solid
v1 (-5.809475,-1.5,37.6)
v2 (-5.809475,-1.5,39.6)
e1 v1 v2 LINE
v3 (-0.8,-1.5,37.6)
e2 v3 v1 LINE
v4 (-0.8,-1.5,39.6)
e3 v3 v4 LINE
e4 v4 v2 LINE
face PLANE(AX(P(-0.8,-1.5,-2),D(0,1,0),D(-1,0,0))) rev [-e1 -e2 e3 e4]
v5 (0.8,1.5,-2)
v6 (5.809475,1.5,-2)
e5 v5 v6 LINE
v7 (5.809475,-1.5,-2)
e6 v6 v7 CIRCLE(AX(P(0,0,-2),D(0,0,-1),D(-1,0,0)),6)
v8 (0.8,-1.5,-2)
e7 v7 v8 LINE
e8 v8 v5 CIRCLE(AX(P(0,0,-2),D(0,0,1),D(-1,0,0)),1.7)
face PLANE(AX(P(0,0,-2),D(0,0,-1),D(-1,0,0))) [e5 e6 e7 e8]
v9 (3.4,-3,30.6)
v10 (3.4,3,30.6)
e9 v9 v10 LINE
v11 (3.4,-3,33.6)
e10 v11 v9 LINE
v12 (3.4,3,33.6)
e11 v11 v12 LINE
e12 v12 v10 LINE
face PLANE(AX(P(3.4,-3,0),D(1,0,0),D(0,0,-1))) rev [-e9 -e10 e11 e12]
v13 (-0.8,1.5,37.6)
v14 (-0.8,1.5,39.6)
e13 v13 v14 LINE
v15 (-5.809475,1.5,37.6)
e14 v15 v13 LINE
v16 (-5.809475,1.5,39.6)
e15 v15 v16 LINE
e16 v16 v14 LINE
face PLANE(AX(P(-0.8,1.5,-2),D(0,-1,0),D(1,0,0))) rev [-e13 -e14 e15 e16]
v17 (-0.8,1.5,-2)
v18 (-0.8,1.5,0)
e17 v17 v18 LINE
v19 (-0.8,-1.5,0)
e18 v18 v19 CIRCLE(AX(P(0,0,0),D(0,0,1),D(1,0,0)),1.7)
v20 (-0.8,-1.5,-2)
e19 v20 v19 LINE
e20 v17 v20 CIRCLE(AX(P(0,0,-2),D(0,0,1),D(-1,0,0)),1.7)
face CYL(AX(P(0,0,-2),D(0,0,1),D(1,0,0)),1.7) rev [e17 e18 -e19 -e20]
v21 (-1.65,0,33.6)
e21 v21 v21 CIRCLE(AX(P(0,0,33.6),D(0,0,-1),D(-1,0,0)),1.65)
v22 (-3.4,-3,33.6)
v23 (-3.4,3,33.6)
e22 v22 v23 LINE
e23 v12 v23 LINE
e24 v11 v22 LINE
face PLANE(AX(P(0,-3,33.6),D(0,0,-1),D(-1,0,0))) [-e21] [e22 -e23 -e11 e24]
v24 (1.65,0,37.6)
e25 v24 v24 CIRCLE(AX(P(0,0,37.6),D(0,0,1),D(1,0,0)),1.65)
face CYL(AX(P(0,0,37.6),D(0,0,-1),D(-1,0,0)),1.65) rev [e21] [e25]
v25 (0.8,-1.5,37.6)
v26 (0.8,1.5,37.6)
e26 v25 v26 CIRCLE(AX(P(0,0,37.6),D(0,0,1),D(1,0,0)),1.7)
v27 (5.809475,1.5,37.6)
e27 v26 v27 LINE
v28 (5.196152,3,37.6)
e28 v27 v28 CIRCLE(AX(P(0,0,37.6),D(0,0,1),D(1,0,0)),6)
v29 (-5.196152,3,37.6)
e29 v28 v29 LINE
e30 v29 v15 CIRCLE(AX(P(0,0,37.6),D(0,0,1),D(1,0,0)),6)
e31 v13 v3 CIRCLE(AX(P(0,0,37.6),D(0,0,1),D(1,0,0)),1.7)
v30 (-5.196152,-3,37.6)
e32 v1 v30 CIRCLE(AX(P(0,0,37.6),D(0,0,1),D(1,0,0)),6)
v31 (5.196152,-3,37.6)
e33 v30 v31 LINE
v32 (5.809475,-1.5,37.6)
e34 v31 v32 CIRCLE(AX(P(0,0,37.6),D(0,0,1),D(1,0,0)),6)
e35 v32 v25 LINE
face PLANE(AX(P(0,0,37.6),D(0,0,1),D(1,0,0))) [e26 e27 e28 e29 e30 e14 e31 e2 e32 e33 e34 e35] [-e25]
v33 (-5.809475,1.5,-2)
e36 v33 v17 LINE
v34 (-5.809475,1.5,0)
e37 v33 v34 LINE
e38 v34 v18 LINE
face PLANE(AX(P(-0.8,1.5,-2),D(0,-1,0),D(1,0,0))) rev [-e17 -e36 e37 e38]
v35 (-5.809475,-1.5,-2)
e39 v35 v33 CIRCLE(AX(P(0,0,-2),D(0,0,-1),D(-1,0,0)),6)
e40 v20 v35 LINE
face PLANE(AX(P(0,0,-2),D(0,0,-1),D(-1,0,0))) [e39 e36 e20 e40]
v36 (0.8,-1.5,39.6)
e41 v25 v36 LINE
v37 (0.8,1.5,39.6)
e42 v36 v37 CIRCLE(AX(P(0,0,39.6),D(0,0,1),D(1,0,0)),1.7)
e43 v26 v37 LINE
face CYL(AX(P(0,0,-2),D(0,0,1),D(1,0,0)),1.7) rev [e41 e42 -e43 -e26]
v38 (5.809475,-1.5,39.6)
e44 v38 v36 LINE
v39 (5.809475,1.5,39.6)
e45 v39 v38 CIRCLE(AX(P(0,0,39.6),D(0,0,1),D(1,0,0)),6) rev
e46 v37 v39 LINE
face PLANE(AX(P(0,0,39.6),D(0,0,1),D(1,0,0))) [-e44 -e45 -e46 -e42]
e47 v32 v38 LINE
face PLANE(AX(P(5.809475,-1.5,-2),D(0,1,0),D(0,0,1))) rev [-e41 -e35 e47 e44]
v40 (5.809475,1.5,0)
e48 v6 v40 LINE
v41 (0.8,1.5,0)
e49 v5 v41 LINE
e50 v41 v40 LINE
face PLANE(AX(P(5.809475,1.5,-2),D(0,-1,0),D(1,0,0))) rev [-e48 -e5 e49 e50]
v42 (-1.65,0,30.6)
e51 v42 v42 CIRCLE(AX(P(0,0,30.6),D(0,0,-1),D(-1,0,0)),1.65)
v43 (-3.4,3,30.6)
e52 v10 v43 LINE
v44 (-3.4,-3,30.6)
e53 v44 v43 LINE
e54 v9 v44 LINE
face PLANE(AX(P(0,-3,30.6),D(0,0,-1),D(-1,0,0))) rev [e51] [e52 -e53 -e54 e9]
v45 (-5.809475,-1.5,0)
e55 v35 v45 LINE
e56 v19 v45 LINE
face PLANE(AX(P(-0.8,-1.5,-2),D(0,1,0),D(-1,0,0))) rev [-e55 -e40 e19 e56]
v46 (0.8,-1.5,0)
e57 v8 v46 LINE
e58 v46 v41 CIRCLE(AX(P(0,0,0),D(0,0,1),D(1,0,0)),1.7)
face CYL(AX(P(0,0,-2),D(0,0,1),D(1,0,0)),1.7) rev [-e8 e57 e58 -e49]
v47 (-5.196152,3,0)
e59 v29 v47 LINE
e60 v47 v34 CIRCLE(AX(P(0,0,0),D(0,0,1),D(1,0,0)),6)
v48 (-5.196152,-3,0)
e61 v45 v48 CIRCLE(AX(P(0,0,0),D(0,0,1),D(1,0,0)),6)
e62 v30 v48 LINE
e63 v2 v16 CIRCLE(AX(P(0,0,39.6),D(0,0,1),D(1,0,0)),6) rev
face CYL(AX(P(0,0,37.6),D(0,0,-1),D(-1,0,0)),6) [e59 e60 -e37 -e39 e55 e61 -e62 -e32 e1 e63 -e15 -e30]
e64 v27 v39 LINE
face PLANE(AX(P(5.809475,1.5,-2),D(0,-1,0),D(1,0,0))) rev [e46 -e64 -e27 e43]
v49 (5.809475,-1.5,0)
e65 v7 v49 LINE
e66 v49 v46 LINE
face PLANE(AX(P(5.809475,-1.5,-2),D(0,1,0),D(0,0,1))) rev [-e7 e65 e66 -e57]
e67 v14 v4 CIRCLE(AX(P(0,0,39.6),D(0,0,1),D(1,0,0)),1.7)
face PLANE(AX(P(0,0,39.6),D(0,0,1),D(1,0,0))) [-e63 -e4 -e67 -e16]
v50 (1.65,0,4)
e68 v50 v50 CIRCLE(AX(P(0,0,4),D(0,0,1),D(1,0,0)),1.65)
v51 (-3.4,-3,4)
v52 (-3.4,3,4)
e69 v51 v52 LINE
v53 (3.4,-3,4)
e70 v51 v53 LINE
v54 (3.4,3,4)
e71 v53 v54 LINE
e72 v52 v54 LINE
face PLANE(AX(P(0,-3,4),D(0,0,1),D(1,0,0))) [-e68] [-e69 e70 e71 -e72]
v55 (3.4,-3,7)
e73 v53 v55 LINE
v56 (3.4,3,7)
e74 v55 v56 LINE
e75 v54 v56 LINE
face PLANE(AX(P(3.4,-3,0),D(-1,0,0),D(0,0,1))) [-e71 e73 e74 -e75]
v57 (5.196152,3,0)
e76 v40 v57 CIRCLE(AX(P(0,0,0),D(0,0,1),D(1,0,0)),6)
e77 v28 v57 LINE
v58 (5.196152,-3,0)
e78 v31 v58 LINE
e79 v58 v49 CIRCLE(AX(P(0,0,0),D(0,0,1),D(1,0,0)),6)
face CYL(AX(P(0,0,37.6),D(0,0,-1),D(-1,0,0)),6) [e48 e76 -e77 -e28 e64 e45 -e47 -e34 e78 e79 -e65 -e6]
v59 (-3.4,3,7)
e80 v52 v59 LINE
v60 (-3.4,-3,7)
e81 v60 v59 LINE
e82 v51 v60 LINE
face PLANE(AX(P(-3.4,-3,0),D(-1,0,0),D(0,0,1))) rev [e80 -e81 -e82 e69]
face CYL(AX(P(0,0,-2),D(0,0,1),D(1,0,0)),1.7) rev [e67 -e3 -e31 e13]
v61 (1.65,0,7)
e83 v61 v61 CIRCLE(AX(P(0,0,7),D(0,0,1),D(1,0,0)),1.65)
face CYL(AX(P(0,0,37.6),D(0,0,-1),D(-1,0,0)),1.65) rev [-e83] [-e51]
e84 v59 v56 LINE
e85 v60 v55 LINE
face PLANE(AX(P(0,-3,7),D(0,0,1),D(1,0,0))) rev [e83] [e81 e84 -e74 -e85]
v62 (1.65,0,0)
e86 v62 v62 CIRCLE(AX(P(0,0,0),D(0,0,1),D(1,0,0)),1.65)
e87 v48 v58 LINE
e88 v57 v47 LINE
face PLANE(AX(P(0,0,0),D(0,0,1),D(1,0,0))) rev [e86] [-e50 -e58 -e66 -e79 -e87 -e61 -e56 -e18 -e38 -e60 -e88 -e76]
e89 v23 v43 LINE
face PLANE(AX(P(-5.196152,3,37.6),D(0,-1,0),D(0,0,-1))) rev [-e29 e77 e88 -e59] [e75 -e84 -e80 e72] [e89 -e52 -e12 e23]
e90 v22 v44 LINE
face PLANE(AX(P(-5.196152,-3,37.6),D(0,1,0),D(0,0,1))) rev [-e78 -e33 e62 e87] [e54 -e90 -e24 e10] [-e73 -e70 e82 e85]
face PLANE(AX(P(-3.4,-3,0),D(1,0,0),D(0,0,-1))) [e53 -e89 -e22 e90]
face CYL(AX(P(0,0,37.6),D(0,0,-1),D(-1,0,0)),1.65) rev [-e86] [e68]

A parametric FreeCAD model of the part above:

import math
import FreeCAD as App
import Part
import Sketcher

V = App.Vector
Q = App.Units.Quantity


def add_polygon(sketch, points):
    """Adds a closed chain of lines whose ends are joined by coincident constraints."""
    first, n = sketch.GeometryCount, len(points)
    for a, b in zip(points, points[1:] + points[:1]):
        sketch.addGeometry(Part.LineSegment(App.Vector(*a, 0), App.Vector(*b, 0)), False)
    for i in range(n):
        sketch.addConstraint(Sketcher.Constraint("Coincident", first + i, 2, first + (i + 1) % n, 1))

doc = App.newDocument("Part")
params = doc.addObject("Spreadsheet::Sheet", "Params")
for row, (alias, value) in enumerate([
    ("sketch1_radius", "6 mm"),
    ("sketch1_diameter", "3.3 mm"),
    ("pad1_length", "37.6 mm"),
    ("sketch2_radius", "6 mm"),
    ("sketch2_radius2", "1.7 mm"),
    ("pad2_length", "2 mm"),
    ("pad2_length2", "39.6 mm"),
    ("sketch3_height", "3 mm"),
    ("sketch3_width", "6.8 mm"),
], start=1):
    params.set(f"A{row}", alias)
    params.set(f"B{row}", "=" + value)
    params.setAlias(f"B{row}", alias)

body = doc.addObject("PartDesign::Body", "Body")

sketch1 = body.newObject("Sketcher::SketchObject", "Sketch")
sketch1.AttachmentSupport = (doc.getObject("XY_Plane"), [""])
sketch1.MapMode = "FlatFace"
sketch1.addGeometry(Part.LineSegment(V(-5.196152, -3, 0), V(5.196152, -3, 0)), False)
sketch1.addGeometry(Part.ArcOfCircle(Part.Circle(V(0, 0, 0), V(0, 0, 1), 6), math.radians(-30), math.radians(30)), False)
sketch1.addGeometry(Part.LineSegment(V(5.196152, 3, 0), V(-5.196152, 3, 0)), False)
sketch1.addGeometry(Part.ArcOfCircle(Part.Circle(V(0, 0, 0), V(0, 0, 1), 6), math.radians(150), math.radians(210)), False)
sketch1.addGeometry(Part.Circle(V(0, 0, 0), V(0, 0, 1), 1.65), False)
sketch1.addConstraint(Sketcher.Constraint("Coincident", 0, 2, 1, 1))
sketch1.addConstraint(Sketcher.Constraint("Coincident", 1, 2, 2, 1))
sketch1.addConstraint(Sketcher.Constraint("Coincident", 2, 2, 3, 1))
sketch1.addConstraint(Sketcher.Constraint("Coincident", 3, 2, 0, 1))
sketch1.addConstraint(Sketcher.Constraint("Horizontal", 0))
sketch1.addConstraint(Sketcher.Constraint("Horizontal", 2))
sketch1.addConstraint(Sketcher.Constraint("Coincident", 1, 3, -1, 1))
sketch1.addConstraint(Sketcher.Constraint("Coincident", 3, 3, -1, 1))
sketch1.addConstraint(Sketcher.Constraint("Coincident", 4, 3, -1, 1))
sketch1.addConstraint(Sketcher.Constraint("Equal", 1, 3))
sketch1.addConstraint(Sketcher.Constraint("Vertical", 0, 2, 1, 2))
sketch1.addConstraint(Sketcher.Constraint("Radius", 1, Q("6 mm")))
sketch1.addConstraint(Sketcher.Constraint("Diameter", 4, Q("3.3 mm")))
sketch1.addConstraint(Sketcher.Constraint("DistanceY", 0, 2, -1, 1, Q("3 mm")))
sketch1.setExpression("Constraints[11]", "Params.sketch1_radius")
sketch1.setExpression("Constraints[12]", "Params.sketch1_diameter")
pad1 = body.newObject("PartDesign::Pad", "Pad")
pad1.Profile = sketch1
pad1.setExpression("Length", "Params.pad1_length")

sketch2 = body.newObject("Sketcher::SketchObject", "Sketch001")
sketch2.AttachmentSupport = (doc.getObject("XY_Plane"), [""])
sketch2.MapMode = "FlatFace"
sketch2.addGeometry(Part.LineSegment(V(-5.809475, 1.5, 0), V(-0.8, 1.5, 0)), False)
sketch2.addGeometry(Part.ArcOfCircle(Part.Circle(V(0, 0, 0), V(0, 0, 1), 1.7), math.radians(118.072487), math.radians(241.927513)), False)
sketch2.addGeometry(Part.LineSegment(V(-0.8, -1.5, 0), V(-5.809475, -1.5, 0)), False)
sketch2.addGeometry(Part.ArcOfCircle(Part.Circle(V(0, 0, 0), V(0, 0, 1), 6), math.radians(165.522488), math.radians(194.477512)), False)
sketch2.addGeometry(Part.LineSegment(V(0.8, 1.5, 0), V(5.809475, 1.5, 0)), False)
sketch2.addGeometry(Part.ArcOfCircle(Part.Circle(V(0, 0, 0), V(0, 0, 1), 6), math.radians(-14.477512), math.radians(14.477512)), False)
sketch2.addGeometry(Part.LineSegment(V(5.809475, -1.5, 0), V(0.8, -1.5, 0)), False)
sketch2.addGeometry(Part.ArcOfCircle(Part.Circle(V(0, 0, 0), V(0, 0, 1), 1.7), math.radians(-61.927513), math.radians(61.927513)), False)
sketch2.addConstraint(Sketcher.Constraint("Coincident", 0, 2, 1, 1))
sketch2.addConstraint(Sketcher.Constraint("Coincident", 1, 2, 2, 1))
sketch2.addConstraint(Sketcher.Constraint("Coincident", 2, 2, 3, 2))
sketch2.addConstraint(Sketcher.Constraint("Coincident", 3, 1, 0, 1))
sketch2.addConstraint(Sketcher.Constraint("Coincident", 4, 2, 5, 2))
sketch2.addConstraint(Sketcher.Constraint("Coincident", 5, 1, 6, 1))
sketch2.addConstraint(Sketcher.Constraint("Coincident", 6, 2, 7, 1))
sketch2.addConstraint(Sketcher.Constraint("Coincident", 7, 2, 4, 1))
sketch2.addConstraint(Sketcher.Constraint("Horizontal", 0))
sketch2.addConstraint(Sketcher.Constraint("Horizontal", 2))
sketch2.addConstraint(Sketcher.Constraint("Horizontal", 4))
sketch2.addConstraint(Sketcher.Constraint("Horizontal", 6))
sketch2.addConstraint(Sketcher.Constraint("Coincident", 1, 3, -1, 1))
sketch2.addConstraint(Sketcher.Constraint("Coincident", 3, 3, -1, 1))
sketch2.addConstraint(Sketcher.Constraint("Coincident", 5, 3, -1, 1))
sketch2.addConstraint(Sketcher.Constraint("Coincident", 7, 3, -1, 1))
sketch2.addConstraint(Sketcher.Constraint("Equal", 3, 5))
sketch2.addConstraint(Sketcher.Constraint("Equal", 1, 7))
sketch2.addConstraint(Sketcher.Constraint("Horizontal", 3, 1, 4, 2))
sketch2.addConstraint(Sketcher.Constraint("Horizontal", 2, 2, 5, 1))
sketch2.addConstraint(Sketcher.Constraint("Vertical", 0, 2, 1, 2))
sketch2.addConstraint(Sketcher.Constraint("Radius", 3, Q("6 mm")))
sketch2.addConstraint(Sketcher.Constraint("Radius", 1, Q("1.7 mm")))
sketch2.addConstraint(Sketcher.Constraint("DistanceY", 1, 2, 0, 2, Q("3 mm")))
sketch2.setExpression("Constraints[21]", "Params.sketch2_radius")
sketch2.setExpression("Constraints[22]", "Params.sketch2_radius2")
pad2 = body.newObject("PartDesign::Pad", "Pad001")
pad2.Profile = sketch2
pad2.Type = "TwoLengths"
pad2.setExpression("Length", "Params.pad2_length")
pad2.setExpression("Length2", "Params.pad2_length2")
pad2.Reversed = True

sketch3 = body.newObject("Sketcher::SketchObject", "Sketch002")
sketch3.AttachmentSupport = (doc.getObject("XZ_Plane"), [""])
sketch3.MapMode = "FlatFace"
add_polygon(sketch3, [(-3.4, 4), (-3.4, 7), (3.4, 7), (3.4, 4)])
add_polygon(sketch3, [(-3.4, 30.6), (-3.4, 33.6), (3.4, 33.6), (3.4, 30.6)])
sketch3.addConstraint(Sketcher.Constraint("Vertical", 0))
sketch3.addConstraint(Sketcher.Constraint("Horizontal", 1))
sketch3.addConstraint(Sketcher.Constraint("Vertical", 2))
sketch3.addConstraint(Sketcher.Constraint("Horizontal", 3))
sketch3.addConstraint(Sketcher.Constraint("Vertical", 4))
sketch3.addConstraint(Sketcher.Constraint("Horizontal", 5))
sketch3.addConstraint(Sketcher.Constraint("Vertical", 6))
sketch3.addConstraint(Sketcher.Constraint("Horizontal", 7))
sketch3.addConstraint(Sketcher.Constraint("Vertical", 3, 2, 4, 2))
sketch3.addConstraint(Sketcher.Constraint("Vertical", 2, 2, 5, 2))
sketch3.addConstraint(Sketcher.Constraint("Equal", 2, 4))
sketch3.addConstraint(Sketcher.Constraint("DistanceY", 0, 1, 0, 2, Q("3 mm")))
sketch3.addConstraint(Sketcher.Constraint("DistanceX", 1, 1, 1, 2, Q("6.8 mm")))
sketch3.addConstraint(Sketcher.Constraint("DistanceY", -1, 1, 0, 2, Q("7 mm")))
sketch3.addConstraint(Sketcher.Constraint("DistanceX", 0, 2, -1, 1, Q("3.4 mm")))
sketch3.addConstraint(Sketcher.Constraint("DistanceY", -1, 1, 4, 2, Q("33.6 mm")))
sketch3.setExpression("Constraints[19]", "Params.sketch3_height")
sketch3.setExpression("Constraints[20]", "Params.sketch3_width")
pocket1 = body.newObject("PartDesign::Pocket", "Pocket")
pocket1.Profile = sketch3
pocket1.Type = "ThroughAll"
pocket1.Midplane = True

doc.recompute()
